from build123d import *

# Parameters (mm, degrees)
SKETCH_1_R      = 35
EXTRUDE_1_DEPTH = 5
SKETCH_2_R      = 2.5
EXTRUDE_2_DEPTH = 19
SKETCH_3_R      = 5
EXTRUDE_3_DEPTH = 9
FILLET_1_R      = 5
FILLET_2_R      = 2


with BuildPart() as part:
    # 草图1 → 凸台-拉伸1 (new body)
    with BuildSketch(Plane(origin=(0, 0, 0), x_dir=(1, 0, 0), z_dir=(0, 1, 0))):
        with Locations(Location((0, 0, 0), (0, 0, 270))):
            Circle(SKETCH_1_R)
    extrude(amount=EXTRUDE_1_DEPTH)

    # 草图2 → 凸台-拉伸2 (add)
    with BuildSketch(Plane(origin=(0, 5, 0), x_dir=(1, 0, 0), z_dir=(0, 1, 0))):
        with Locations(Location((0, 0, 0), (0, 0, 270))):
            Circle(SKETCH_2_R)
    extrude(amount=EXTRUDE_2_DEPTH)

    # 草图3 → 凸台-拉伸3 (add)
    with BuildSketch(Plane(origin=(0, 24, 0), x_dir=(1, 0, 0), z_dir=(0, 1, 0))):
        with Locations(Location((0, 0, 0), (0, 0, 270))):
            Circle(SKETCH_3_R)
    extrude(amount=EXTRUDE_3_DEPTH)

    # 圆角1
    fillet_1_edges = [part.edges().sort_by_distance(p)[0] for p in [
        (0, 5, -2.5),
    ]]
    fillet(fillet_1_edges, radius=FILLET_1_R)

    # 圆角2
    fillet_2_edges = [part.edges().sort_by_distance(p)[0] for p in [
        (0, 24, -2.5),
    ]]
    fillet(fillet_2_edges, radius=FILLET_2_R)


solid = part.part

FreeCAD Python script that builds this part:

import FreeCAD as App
import Part
import Sketcher

V = App.Vector


def edges_at(feature, points):
    """Names of the edges that pass closest to the given points."""
    edges = feature.Shape.Edges
    near = lambda p: min(range(len(edges)), key=lambda i: edges[i].distToShape(Part.Vertex(*p))[0])
    return sorted({f"Edge{near(p) + 1}" for p in points})

doc = App.newDocument("Part")
body = doc.addObject("PartDesign::Body", "Body")

# Sketch on XZ plane
sketch1 = doc.addObject("Sketcher::SketchObject", "Sketch")
body.addObject(sketch1)
sketch1.AttachmentSupport = (doc.XZ_Plane, [""])
sketch1.MapMode = "FlatFace"
sketch1.addGeometry(Part.Circle(V(0, 0, 0), V(0, 0, 1), 35), False)
sketch1.addConstraint([
    Sketcher.Constraint("Coincident", 0, 3, -1, 1),
    Sketcher.Constraint("Diameter", 0, 70.0),
])
pad1 = doc.addObject("PartDesign::Pad", "Pad")
body.addObject(pad1)
pad1.Profile = sketch1
pad1.Length = 5
pad1.Reversed = True

# Sketch on XZ plane
sketch2 = doc.addObject("Sketcher::SketchObject", "Sketch001")
body.addObject(sketch2)
sketch2.AttachmentSupport = (doc.XZ_Plane, [""])
sketch2.MapMode = "FlatFace"
sketch2.AttachmentOffset = App.Placement(V(0, 0, -5), App.Rotation())
sketch2.addGeometry(Part.Circle(V(0, 0, 0), V(0, 0, 1), 2.5), False)
sketch2.addConstraint([
    Sketcher.Constraint("Coincident", 0, 3, -1, 1),
    Sketcher.Constraint("Diameter", 0, 5.0),
])
pad2 = doc.addObject("PartDesign::Pad", "Pad001")
body.addObject(pad2)
pad2.Profile = sketch2
pad2.Length = 19
pad2.Reversed = True

# Sketch on XZ plane
sketch3 = doc.addObject("Sketcher::SketchObject", "Sketch002")
body.addObject(sketch3)
sketch3.AttachmentSupport = (doc.XZ_Plane, [""])
sketch3.MapMode = "FlatFace"
sketch3.AttachmentOffset = App.Placement(V(0, 0, -24), App.Rotation())
sketch3.addGeometry(Part.Circle(V(0, 0, 0), V(0, 0, 1), 5), False)
sketch3.addConstraint([
    Sketcher.Constraint("Coincident", 0, 3, -1, 1),
    Sketcher.Constraint("Diameter", 0, 10.0),
])
pad3 = doc.addObject("PartDesign::Pad", "Pad002")
body.addObject(pad3)
pad3.Profile = sketch3
pad3.Length = 9
pad3.Reversed = True
doc.recompute()

fillet = doc.addObject("PartDesign::Fillet", "Fillet")
body.addObject(fillet)
fillet.Base = (pad3, edges_at(pad3, [(0, 5, -2.5)]))
fillet.Radius = 5
doc.recompute()

fillet2 = doc.addObject("PartDesign::Fillet", "Fillet001")
body.addObject(fillet2)
fillet2.Base = (fillet, edges_at(fillet, [(0, 24, -2.5)]))
fillet2.Radius = 2

doc.recompute()
